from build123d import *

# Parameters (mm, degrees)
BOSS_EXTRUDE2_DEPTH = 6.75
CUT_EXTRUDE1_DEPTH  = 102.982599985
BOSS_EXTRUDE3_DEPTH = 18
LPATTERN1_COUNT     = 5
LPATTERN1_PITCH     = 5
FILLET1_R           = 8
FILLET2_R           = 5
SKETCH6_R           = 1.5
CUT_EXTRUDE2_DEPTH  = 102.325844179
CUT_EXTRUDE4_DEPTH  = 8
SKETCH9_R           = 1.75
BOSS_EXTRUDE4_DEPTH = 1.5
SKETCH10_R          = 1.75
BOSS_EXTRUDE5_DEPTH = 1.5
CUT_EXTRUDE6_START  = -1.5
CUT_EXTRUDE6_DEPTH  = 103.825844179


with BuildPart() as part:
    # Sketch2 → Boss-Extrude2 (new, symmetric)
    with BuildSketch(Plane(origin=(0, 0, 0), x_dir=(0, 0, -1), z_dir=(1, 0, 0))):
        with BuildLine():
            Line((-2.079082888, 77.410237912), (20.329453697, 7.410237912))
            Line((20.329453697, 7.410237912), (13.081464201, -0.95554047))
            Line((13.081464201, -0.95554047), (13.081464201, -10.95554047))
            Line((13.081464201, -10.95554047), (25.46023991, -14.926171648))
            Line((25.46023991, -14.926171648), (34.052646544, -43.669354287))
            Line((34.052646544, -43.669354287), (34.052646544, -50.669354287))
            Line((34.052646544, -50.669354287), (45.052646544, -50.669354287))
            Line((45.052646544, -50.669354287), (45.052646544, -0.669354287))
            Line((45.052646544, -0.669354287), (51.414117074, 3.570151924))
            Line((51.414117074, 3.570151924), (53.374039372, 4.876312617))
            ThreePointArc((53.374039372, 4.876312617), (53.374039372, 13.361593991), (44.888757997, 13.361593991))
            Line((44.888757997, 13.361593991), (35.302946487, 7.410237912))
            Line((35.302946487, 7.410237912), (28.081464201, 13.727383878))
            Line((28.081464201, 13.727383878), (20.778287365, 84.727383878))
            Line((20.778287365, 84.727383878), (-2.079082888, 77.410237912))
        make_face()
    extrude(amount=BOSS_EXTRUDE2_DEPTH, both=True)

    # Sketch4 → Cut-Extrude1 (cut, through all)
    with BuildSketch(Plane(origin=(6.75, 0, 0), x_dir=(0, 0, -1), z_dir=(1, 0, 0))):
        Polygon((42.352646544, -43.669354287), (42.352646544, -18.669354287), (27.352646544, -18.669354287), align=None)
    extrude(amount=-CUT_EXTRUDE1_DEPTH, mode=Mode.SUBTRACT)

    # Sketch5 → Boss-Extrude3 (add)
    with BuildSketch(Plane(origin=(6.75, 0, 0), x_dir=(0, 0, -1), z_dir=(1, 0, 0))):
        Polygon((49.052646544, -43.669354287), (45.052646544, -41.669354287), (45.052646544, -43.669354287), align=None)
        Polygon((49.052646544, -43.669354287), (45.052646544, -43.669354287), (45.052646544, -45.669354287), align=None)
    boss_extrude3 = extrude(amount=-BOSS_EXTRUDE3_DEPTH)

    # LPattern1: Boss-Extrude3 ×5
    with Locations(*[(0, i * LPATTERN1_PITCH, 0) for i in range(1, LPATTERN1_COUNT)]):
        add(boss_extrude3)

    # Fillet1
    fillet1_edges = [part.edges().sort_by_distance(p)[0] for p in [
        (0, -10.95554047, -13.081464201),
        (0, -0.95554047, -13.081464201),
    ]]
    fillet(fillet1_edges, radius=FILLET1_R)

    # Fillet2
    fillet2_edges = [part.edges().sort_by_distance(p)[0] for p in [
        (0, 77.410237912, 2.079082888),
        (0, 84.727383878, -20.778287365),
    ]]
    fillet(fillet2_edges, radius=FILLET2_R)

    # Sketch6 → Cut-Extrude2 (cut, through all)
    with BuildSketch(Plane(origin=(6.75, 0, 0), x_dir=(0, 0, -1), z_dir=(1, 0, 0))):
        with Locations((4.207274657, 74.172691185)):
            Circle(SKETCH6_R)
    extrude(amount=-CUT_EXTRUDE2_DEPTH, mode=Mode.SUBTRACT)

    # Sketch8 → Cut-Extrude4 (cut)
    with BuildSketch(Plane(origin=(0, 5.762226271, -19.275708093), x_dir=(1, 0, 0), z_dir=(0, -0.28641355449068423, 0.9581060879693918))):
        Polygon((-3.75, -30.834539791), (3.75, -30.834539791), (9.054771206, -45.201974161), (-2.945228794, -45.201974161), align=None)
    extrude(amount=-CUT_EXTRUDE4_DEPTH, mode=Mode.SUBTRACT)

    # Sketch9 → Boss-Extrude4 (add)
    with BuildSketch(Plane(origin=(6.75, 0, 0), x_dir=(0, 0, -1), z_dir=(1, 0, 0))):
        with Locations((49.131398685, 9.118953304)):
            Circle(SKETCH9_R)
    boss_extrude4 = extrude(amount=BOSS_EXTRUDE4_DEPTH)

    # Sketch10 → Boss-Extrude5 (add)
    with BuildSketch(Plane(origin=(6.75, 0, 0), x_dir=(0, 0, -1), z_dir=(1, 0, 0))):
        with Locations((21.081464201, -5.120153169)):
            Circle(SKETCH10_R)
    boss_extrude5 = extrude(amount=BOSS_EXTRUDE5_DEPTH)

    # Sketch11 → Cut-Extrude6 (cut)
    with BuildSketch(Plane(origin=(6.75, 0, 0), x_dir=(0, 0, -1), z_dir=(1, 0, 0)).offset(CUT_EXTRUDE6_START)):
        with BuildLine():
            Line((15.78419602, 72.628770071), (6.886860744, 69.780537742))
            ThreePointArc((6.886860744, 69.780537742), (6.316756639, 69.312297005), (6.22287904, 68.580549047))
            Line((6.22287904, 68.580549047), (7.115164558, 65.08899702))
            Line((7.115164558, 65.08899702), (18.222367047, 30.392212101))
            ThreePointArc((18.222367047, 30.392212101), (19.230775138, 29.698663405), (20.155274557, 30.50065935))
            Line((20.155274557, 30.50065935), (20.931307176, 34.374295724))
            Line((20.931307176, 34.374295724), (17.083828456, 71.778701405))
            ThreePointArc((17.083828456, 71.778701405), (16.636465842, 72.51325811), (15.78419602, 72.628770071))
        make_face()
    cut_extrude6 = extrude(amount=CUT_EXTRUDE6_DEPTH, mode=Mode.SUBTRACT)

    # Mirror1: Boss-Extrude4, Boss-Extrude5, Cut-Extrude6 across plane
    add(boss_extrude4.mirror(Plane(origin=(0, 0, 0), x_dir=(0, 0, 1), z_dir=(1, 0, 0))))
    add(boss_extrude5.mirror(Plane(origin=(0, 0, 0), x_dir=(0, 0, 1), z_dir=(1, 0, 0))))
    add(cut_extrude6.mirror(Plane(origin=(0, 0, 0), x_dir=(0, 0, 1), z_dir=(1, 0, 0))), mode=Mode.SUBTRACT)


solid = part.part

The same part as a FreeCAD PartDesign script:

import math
import FreeCAD as App
import Part
import Sketcher


def edges_at(feature, points):
    """Names of the edges that pass closest to the given points."""
    edges = feature.Shape.Edges
    near = lambda p: min(range(len(edges)), key=lambda i: edges[i].distToShape(Part.Vertex(*p))[0])
    return sorted({f"Edge{near(p) + 1}" for p in points})


def add_polygon(sketch, points):
    """Adds a closed chain of lines whose ends are joined by coincident constraints."""
    first, n = sketch.GeometryCount, len(points)
    for a, b in zip(points, points[1:] + points[:1]):
        sketch.addGeometry(Part.LineSegment(App.Vector(*a, 0), App.Vector(*b, 0)), False)
    for i in range(n):
        sketch.addConstraint(Sketcher.Constraint("Coincident", first + i, 2, first + (i + 1) % n, 1))

doc = App.newDocument("Part")
body = doc.addObject("PartDesign::Body", "Body")

# Sketch on YZ plane
sketch1 = doc.addObject("Sketcher::SketchObject", "Sketch")
body.addObject(sketch1)
sketch1.AttachmentSupport = (doc.YZ_Plane, [""])
sketch1.MapMode = "FlatFace"
sketch1.addGeometry([
    Part.LineSegment(App.Vector(77.4, 2.1, 0), App.Vector(7.4, -20.3, 0)),  # 0
    Part.LineSegment(App.Vector(7.4, -20.3, 0), App.Vector(-1, -13.1, 0)),  # 1
    Part.LineSegment(App.Vector(-1, -13.1, 0), App.Vector(-11, -13.1, 0)),  # 2
    Part.LineSegment(App.Vector(-11, -13.1, 0), App.Vector(-14.9, -25.5, 0)),  # 3
    Part.LineSegment(App.Vector(-14.9, -25.5, 0), App.Vector(-43.7, -34.1, 0)),  # 4
    Part.LineSegment(App.Vector(-43.7, -34.1, 0), App.Vector(-50.7, -34.1, 0)),  # 5
    Part.LineSegment(App.Vector(-50.7, -34.1, 0), App.Vector(-50.7, -45.1, 0)),  # 6
    Part.LineSegment(App.Vector(-50.7, -45.1, 0), App.Vector(-0.7, -45.1, 0)),  # 7
    Part.LineSegment(App.Vector(-0.7, -45.1, 0), App.Vector(3.6, -51.4, 0)),  # 8
    Part.LineSegment(App.Vector(3.6, -51.4, 0), App.Vector(4.9, -53.4, 0)),  # 9
    Part.ArcOfCircle(Part.Circle(App.Vector(9.1, -49.1, 0), App.Vector(0, 0, 1), 6), math.radians(-135), math.radians(45)),  # 10
    Part.LineSegment(App.Vector(13.4, -44.9, 0), App.Vector(7.4, -35.3, 0)),  # 11
    Part.LineSegment(App.Vector(7.4, -35.3, 0), App.Vector(13.7, -28.1, 0)),  # 12
    Part.LineSegment(App.Vector(13.7, -28.1, 0), App.Vector(84.7, -20.8, 0)),  # 13
    Part.LineSegment(App.Vector(84.7, -20.8, 0), App.Vector(77.4, 2.1, 0)),  # 14
], False)
sketch1.addConstraint([
    Sketcher.Constraint("Coincident", 0, 2, 1, 1),
    Sketcher.Constraint("Coincident", 1, 2, 2, 1),
    Sketcher.Constraint("Coincident", 2, 2, 3, 1),
    Sketcher.Constraint("Coincident", 3, 2, 4, 1),
    Sketcher.Constraint("Coincident", 4, 2, 5, 1),
    Sketcher.Constraint("Coincident", 5, 2, 6, 1),
    Sketcher.Constraint("Coincident", 6, 2, 7, 1),
    Sketcher.Constraint("Coincident", 7, 2, 8, 1),
    Sketcher.Constraint("Coincident", 8, 2, 9, 1),
    Sketcher.Constraint("Coincident", 9, 2, 10, 1),
    Sketcher.Constraint("Coincident", 10, 2, 11, 1),
    Sketcher.Constraint("Coincident", 11, 2, 12, 1),
    Sketcher.Constraint("Coincident", 12, 2, 13, 1),
    Sketcher.Constraint("Coincident", 13, 2, 14, 1),
    Sketcher.Constraint("Coincident", 14, 2, 0, 1),
    Sketcher.Constraint("Horizontal", 2),
    Sketcher.Constraint("Horizontal", 5),
    Sketcher.Constraint("Vertical", 6),
    Sketcher.Constraint("Horizontal", 7),
    Sketcher.Constraint("Parallel", 8, 9),
    Sketcher.Constraint("Perpendicular", 0, 14),
    Sketcher.Constraint("Vertical", 0, 2, 11, 2),
    Sketcher.Constraint("Radius", 10, 6.0),
    Sketcher.Constraint("DistanceX", 2, 2, 2, 1, 10.0),
    Sketcher.Constraint("DistanceX", 5, 2, 5, 1, 7.0),
    Sketcher.Constraint("DistanceX", 7, 1, 7, 2, 50.0),
    Sketcher.Constraint("DistanceY", 6, 2, 6, 1, 11.0),
    Sketcher.Constraint("Distance", 3, 13.0),
    Sketcher.Constraint("Distance", 4, 30.0),
    Sketcher.Constraint("Distance", 14, 24.0),
    Sketcher.Constraint("DistanceY", 12, 2, 1, 2, 15.0),
    Sketcher.Constraint("DistanceX", 12, 2, 13, 2, 71.0),
    Sketcher.Constraint("DistanceX", 0, 2, 14, 2, 70.0),
    Sketcher.Constraint("DistanceY", 10, 3, -1, 1, 49.131399),
    Sketcher.Constraint("DistanceX", 8, 2, 10, 3, 5.548801),
    Sketcher.Constraint("DistanceY", 9, 2, 3, 2, 27.913799),
    Sketcher.Constraint("DistanceY", 7, 2, 11, 2, 9.7497),
    Sketcher.Constraint("Distance", 0, 73.499269),
    Sketcher.Constraint("Distance", 8, 7.644718),
    Sketcher.Constraint("Distance", 9, 2.355282),
    Sketcher.Constraint("Distance", 12, 9.594589),
    Sketcher.Constraint("Distance", 13, 71.37462),
    Sketcher.Constraint("DistanceX", 1, 2, -1, 1, 0.95554),
    Sketcher.Constraint("DistanceX", 3, 2, -1, 1, 14.926172),
    Sketcher.Constraint("DistanceX", 1, 2, 0, 2, 8.365778),
    Sketcher.Constraint("DistanceX", 10, 3, 10, 2, 4.242641),
])
pad1 = doc.addObject("PartDesign::Pad", "Pad")
body.addObject(pad1)
pad1.Profile = sketch1
pad1.Length = 13.5
pad1.Midplane = True

# Sketch on YZ plane
sketch2 = doc.addObject("Sketcher::SketchObject", "Sketch001")
body.addObject(sketch2)
sketch2.AttachmentSupport = (doc.YZ_Plane, [""])
sketch2.MapMode = "FlatFace"
sketch2.AttachmentOffset = App.Placement(App.Vector(0, 0, 6.75), App.Rotation())
add_polygon(sketch2, [(-44, -42), (-19, -42), (-19, -27)])  # lines 0-2
sketch2.addConstraint([
    Sketcher.Constraint("Horizontal", 0),
    Sketcher.Constraint("Vertical", 1),
    Sketcher.Constraint("DistanceX", 0, 1, 0, 2, 25.0),
    Sketcher.Constraint("DistanceY", 1, 1, 1, 2, 15.0),
    Sketcher.Constraint("DistanceX", 0, 2, -1, 1, 18.669354),
    Sketcher.Constraint("DistanceY", 0, 2, -1, 1, 42.352647),
])
pocket1 = doc.addObject("PartDesign::Pocket", "Pocket")
body.addObject(pocket1)
pocket1.Profile = sketch2
pocket1.Type = "ThroughAll"

# Sketch on YZ plane
sketch3 = doc.addObject("Sketcher::SketchObject", "Sketch002")
body.addObject(sketch3)
sketch3.AttachmentSupport = (doc.YZ_Plane, [""])
sketch3.MapMode = "FlatFace"
sketch3.AttachmentOffset = App.Placement(App.Vector(0, 0, 6.75), App.Rotation())
add_polygon(sketch3, [(-43.7, -49.1), (-41.7, -45.1), (-45.7, -45.1)])  # lines 0-2
sketch3.addConstraint([
    Sketcher.Constraint("Horizontal", 1),
    Sketcher.Constraint("Equal", 0, 2),
    Sketcher.Constraint("DistanceX", 1, 2, 1, 1, 4.0),
    Sketcher.Constraint("DistanceY", 2, 2, 0, 2, 4.0),
    Sketcher.Constraint("DistanceX", 0, 2, -1, 1, 41.669354),
    Sketcher.Constraint("DistanceY", 0, 2, -1, 1, 45.052647),
])
pad2 = doc.addObject("PartDesign::Pad", "Pad001")
body.addObject(pad2)
pad2.Profile = sketch3
pad2.Length = 18
pad2.Reversed = True
doc.recompute()

linearpattern = doc.addObject("PartDesign::LinearPattern", "LinearPattern")
body.addObject(linearpattern)
linearpattern.Originals = [pad2]
linearpattern.Direction = (doc.Y_Axis, [""])
linearpattern.Mode = "offset"
linearpattern.Offset = 5
linearpattern.Occurrences = 5
body.Tip = linearpattern
doc.recompute()

fillet = doc.addObject("PartDesign::Fillet", "Fillet")
body.addObject(fillet)
fillet.Base = (linearpattern, edges_at(linearpattern, [(0, -10.956, -13.081), (0, -0.956, -13.081)]))
fillet.Radius = 8
doc.recompute()

fillet2 = doc.addObject("PartDesign::Fillet", "Fillet001")
body.addObject(fillet2)
fillet2.Base = (fillet, edges_at(fillet, [(0, 77.41, 2.079), (0, 84.727, -20.778)]))
fillet2.Radius = 5

# Sketch on YZ plane
sketch4 = doc.addObject("Sketcher::SketchObject", "Sketch003")
body.addObject(sketch4)
sketch4.AttachmentSupport = (doc.YZ_Plane, [""])
sketch4.MapMode = "FlatFace"
sketch4.AttachmentOffset = App.Placement(App.Vector(0, 0, 6.75), App.Rotation())
sketch4.addGeometry(Part.Circle(App.Vector(74.2, -4.2, 0), App.Vector(0, 0, 1), 1.5), False)
sketch4.addConstraint([
    Sketcher.Constraint("Diameter", 0, 3.0),
    Sketcher.Constraint("DistanceX", -1, 1, 0, 3, 74.172691),
    Sketcher.Constraint("DistanceY", 0, 3, -1, 1, 4.207275),
])
pocket2 = doc.addObject("PartDesign::Pocket", "Pocket001")
body.addObject(pocket2)
pocket2.Profile = sketch4
pocket2.Type = "ThroughAll"

# Sketch on an angled plane
sketch5 = doc.addObject("Sketcher::SketchObject", "Sketch004")
body.addObject(sketch5)
sketch5.Placement = App.Placement(App.Vector(0, 5.762226, -19.275708), App.Rotation(App.Vector(1, 0, 0), App.Vector(0, 0.958106088, 0.286413554), App.Vector(0, -0.286413554, 0.958106088), "ZXY"))
add_polygon(sketch5, [(4, -31), (-4, -31), (-3, -45), (9, -45)])  # lines 0-3
sketch5.addConstraint([
    Sketcher.Constraint("Horizontal", 0),
    Sketcher.Constraint("Horizontal", 2),
    Sketcher.Constraint("DistanceX", 2, 1, 2, 2, 12.0),
    Sketcher.Constraint("DistanceX", 0, 2, 0, 1, 7.5),
    Sketcher.Constraint("DistanceX", 0, 2, -1, 1, 3.75),
    Sketcher.Constraint("DistanceY", 0, 2, -1, 1, 30.83454),
    Sketcher.Constraint("DistanceX", 1, 2, -1, 1, 2.945229),
    Sketcher.Constraint("Distance", 1, 14.389956),
])
pocket3 = doc.addObject("PartDesign::Pocket", "Pocket002")
body.addObject(pocket3)
pocket3.Profile = sketch5
pocket3.Length = 8

# Sketch on YZ plane
sketch6 = doc.addObject("Sketcher::SketchObject", "Sketch005")
body.addObject(sketch6)
sketch6.AttachmentSupport = (doc.YZ_Plane, [""])
sketch6.MapMode = "FlatFace"
sketch6.AttachmentOffset = App.Placement(App.Vector(0, 0, 6.75), App.Rotation())
sketch6.addGeometry(Part.Circle(App.Vector(9.1, -49.1, 0), App.Vector(0, 0, 1), 1.8), False)
sketch6.addConstraint([
    Sketcher.Constraint("Diameter", 0, 3.5),
    Sketcher.Constraint("DistanceY", 0, 3, -1, 1, 49.131399),
    Sketcher.Constraint("DistanceX", -1, 1, 0, 3, 9.118953),
])
pad3 = doc.addObject("PartDesign::Pad", "Pad002")
body.addObject(pad3)
pad3.Profile = sketch6
pad3.Length = 1.5

# Sketch on YZ plane
sketch7 = doc.addObject("Sketcher::SketchObject", "Sketch006")
body.addObject(sketch7)
sketch7.AttachmentSupport = (doc.YZ_Plane, [""])
sketch7.MapMode = "FlatFace"
sketch7.AttachmentOffset = App.Placement(App.Vector(0, 0, 6.75), App.Rotation())
sketch7.addGeometry(Part.Circle(App.Vector(-5.1, -21.1, 0), App.Vector(0, 0, 1), 1.8), False)
sketch7.addConstraint([
    Sketcher.Constraint("Diameter", 0, 3.5),
    Sketcher.Constraint("DistanceX", 0, 3, -1, 1, 5.120153),
    Sketcher.Constraint("DistanceY", 0, 3, -1, 1, 21.081464),
])
pad4 = doc.addObject("PartDesign::Pad", "Pad003")
body.addObject(pad4)
pad4.Profile = sketch7
pad4.Length = 1.5

# Sketch on YZ plane
sketch8 = doc.addObject("Sketcher::SketchObject", "Sketch007")
body.addObject(sketch8)
sketch8.AttachmentSupport = (doc.YZ_Plane, [""])
sketch8.MapMode = "FlatFace"
sketch8.AttachmentOffset = App.Placement(App.Vector(0, 0, 5.25), App.Rotation())
sketch8.addGeometry([
    Part.LineSegment(App.Vector(72.62877, -15.784196, 0), App.Vector(69.780538, -6.886861, 0)),  # 0
    Part.ArcOfCircle(Part.Circle(App.Vector(68.828147, -7.191742, 0), App.Vector(0, 0, 1), 1), math.radians(17.75101), math.radians(104.335435)),  # 1
    Part.LineSegment(App.Vector(68.580549, -6.222879, 0), App.Vector(65.088997, -7.115165, 0)),  # 2
    Part.LineSegment(App.Vector(65.088997, -7.115165, 0), App.Vector(30.392212, -18.222367, 0)),  # 3
    Part.ArcOfCircle(Part.Circle(App.Vector(30.697093, -19.174757, 0), App.Vector(0, 0, 1), 1), math.radians(107.75101), math.radians(258.671504)),  # 4
    Part.LineSegment(App.Vector(30.500659, -20.155275, 0), App.Vector(34.374296, -20.931307, 0)),  # 5
    Part.LineSegment(App.Vector(34.374296, -20.931307, 0), App.Vector(71.778701, -17.083828, 0)),  # 6
    Part.ArcOfCircle(Part.Circle(App.Vector(71.67638, -16.089077, 0), App.Vector(0, 0, 1), 1), math.radians(-84.127116), math.radians(17.75101)),  # 7
], False)
sketch8.addConstraint([
    Sketcher.Constraint("Coincident", 0, 2, 1, 1),
    Sketcher.Constraint("Coincident", 1, 2, 2, 1),
    Sketcher.Constraint("Coincident", 2, 2, 3, 1),
    Sketcher.Constraint("Coincident", 3, 2, 4, 1),
    Sketcher.Constraint("Coincident", 4, 2, 5, 1),
    Sketcher.Constraint("Coincident", 5, 2, 6, 1),
    Sketcher.Constraint("Coincident", 6, 2, 7, 1),
    Sketcher.Constraint("Coincident", 7, 2, 0, 1),
    Sketcher.Constraint("Radius", 1, 1.0),
    Sketcher.Constraint("Radius", 4, 1.0),
    Sketcher.Constraint("Radius", 7, 1.0),
    Sketcher.Constraint("DistanceX", -1, 1, 6, 2, 71.778701),
    Sketcher.Constraint("DistanceX", 1, 2, 1, 3, 0.247598),
    Sketcher.Constraint("DistanceY", 7, 3, 1, 2, 9.866198),
    Sketcher.Constraint("DistanceX", 5, 2, 2, 2, 30.714701),
    Sketcher.Constraint("Distance", 0, 9.342109),
    Sketcher.Constraint("Distance", 3, 36.431262),
    Sketcher.Constraint("DistanceY", 1, 3, -1, 1, 7.191742),
    Sketcher.Constraint("DistanceX", -1, 1, 7, 3, 71.67638),
    Sketcher.Constraint("DistanceY", 0, 2, -1, 1, 6.886861),
    Sketcher.Constraint("DistanceX", -1, 1, 1, 2, 68.580549),
    Sketcher.Constraint("DistanceX", -1, 1, 4, 2, 30.500659),
    Sketcher.Constraint("DistanceY", 4, 3, 7, 3, 3.08568),
    Sketcher.Constraint("DistanceX", 2, 2, 1, 3, 3.73915),
    Sketcher.Constraint("DistanceX", 3, 2, 4, 3, 0.304881),
    Sketcher.Constraint("DistanceY", 4, 2, 2, 2, 13.04011),
    Sketcher.Constraint("DistanceY", 5, 2, 4, 3, 1.75655),
])
pocket4 = doc.addObject("PartDesign::Pocket", "Pocket003")
body.addObject(pocket4)
pocket4.Profile = sketch8
pocket4.Length = 103.825844
pocket4.Reversed = True
doc.recompute()

mirrored = doc.addObject("PartDesign::Mirrored", "Mirrored")
body.addObject(mirrored)
mirrored.Originals = [pad3, pad4, pocket4]
mirrored.MirrorPlane = (doc.YZ_Plane, [""])
body.Tip = mirrored

doc.recompute()
